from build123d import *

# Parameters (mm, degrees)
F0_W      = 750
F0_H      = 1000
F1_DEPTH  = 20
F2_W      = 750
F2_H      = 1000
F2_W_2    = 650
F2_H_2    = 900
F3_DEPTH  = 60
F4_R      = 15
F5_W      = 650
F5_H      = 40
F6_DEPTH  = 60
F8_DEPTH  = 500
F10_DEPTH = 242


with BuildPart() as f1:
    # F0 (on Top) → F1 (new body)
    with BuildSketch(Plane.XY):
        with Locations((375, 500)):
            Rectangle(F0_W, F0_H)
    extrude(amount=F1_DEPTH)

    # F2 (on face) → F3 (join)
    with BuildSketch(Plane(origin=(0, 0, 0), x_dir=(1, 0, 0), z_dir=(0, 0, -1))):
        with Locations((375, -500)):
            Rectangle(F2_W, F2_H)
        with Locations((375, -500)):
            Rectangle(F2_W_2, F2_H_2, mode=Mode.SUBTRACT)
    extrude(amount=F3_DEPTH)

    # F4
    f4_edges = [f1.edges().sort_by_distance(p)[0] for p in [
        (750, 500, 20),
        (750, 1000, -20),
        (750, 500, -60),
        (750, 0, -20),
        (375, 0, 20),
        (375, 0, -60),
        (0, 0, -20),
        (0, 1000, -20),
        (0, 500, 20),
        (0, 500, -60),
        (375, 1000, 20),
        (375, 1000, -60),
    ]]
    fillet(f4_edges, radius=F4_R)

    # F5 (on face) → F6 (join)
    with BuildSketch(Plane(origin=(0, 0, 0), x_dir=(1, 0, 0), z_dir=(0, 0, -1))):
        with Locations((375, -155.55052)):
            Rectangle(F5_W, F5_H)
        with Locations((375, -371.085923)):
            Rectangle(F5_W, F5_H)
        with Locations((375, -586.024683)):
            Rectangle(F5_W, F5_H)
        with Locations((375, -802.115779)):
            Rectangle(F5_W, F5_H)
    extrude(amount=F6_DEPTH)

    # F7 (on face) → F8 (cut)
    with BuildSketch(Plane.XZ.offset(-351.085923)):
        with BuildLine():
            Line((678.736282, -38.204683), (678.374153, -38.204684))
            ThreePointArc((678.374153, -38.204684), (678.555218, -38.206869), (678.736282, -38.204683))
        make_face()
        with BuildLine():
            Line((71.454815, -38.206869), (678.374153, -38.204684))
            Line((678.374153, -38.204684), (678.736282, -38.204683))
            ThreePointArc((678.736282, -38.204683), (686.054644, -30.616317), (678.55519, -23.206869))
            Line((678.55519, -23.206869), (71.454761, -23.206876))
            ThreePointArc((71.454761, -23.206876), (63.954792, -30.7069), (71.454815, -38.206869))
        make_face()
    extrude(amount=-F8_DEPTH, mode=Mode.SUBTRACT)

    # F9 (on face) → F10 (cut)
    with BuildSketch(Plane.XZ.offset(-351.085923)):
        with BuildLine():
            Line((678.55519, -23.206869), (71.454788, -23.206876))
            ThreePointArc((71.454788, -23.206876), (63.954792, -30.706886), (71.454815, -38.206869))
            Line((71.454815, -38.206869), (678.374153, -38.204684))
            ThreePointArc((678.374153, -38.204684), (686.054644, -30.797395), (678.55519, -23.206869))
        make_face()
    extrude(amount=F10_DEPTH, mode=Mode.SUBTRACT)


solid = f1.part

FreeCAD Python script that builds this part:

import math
import FreeCAD as App
import Part
import Sketcher

V = App.Vector
Q = App.Units.Quantity


def edges_at(feature, points):
    """Names of the edges that pass closest to the given points."""
    edges = feature.Shape.Edges
    near = lambda p: min(range(len(edges)), key=lambda i: edges[i].distToShape(Part.Vertex(*p))[0])
    return sorted({f"Edge{near(p) + 1}" for p in points})


def add_polygon(sketch, points):
    """Adds a closed chain of lines whose ends are joined by coincident constraints."""
    first, n = sketch.GeometryCount, len(points)
    for a, b in zip(points, points[1:] + points[:1]):
        sketch.addGeometry(Part.LineSegment(App.Vector(*a, 0), App.Vector(*b, 0)), False)
    for i in range(n):
        sketch.addConstraint(Sketcher.Constraint("Coincident", first + i, 2, first + (i + 1) % n, 1))

doc = App.newDocument("Part")
body = doc.addObject("PartDesign::Body", "Body")

sketch1 = doc.addObject("Sketcher::SketchObject", "Sketch")
body.addObject(sketch1)
sketch1.AttachmentSupport = (doc.XY_Plane, [""])
sketch1.MapMode = "FlatFace"
add_polygon(sketch1, [(0, 1000), (0, 0), (750, 0), (750, 1000)])
sketch1.addConstraint([
    Sketcher.Constraint("Vertical", 0),
    Sketcher.Constraint("Horizontal", 1),
    Sketcher.Constraint("Vertical", 2),
    Sketcher.Constraint("Horizontal", 3),
    Sketcher.Constraint("Coincident", 0, 2, -1, 1),
    Sketcher.Constraint("DistanceX", 1, 1, 1, 2, Q("750 mm")),
    Sketcher.Constraint("DistanceY", 0, 2, 0, 1, Q("1000 mm")),
])
pad1 = doc.addObject("PartDesign::Pad", "Pad")
body.addObject(pad1)
pad1.Profile = sketch1
pad1.Length = 20

sketch2 = doc.addObject("Sketcher::SketchObject", "Sketch001")
body.addObject(sketch2)
sketch2.AttachmentSupport = (doc.XY_Plane, [""])
sketch2.MapMode = "FlatFace"
add_polygon(sketch2, [(0, 0), (0, 1000), (750, 1000), (750, 0)])
add_polygon(sketch2, [(700, 950), (50, 950), (50, 50), (700, 50)])
sketch2.addConstraint([
    Sketcher.Constraint("Vertical", 0),
    Sketcher.Constraint("Horizontal", 1),
    Sketcher.Constraint("Vertical", 2),
    Sketcher.Constraint("Horizontal", 3),
    Sketcher.Constraint("Horizontal", 4),
    Sketcher.Constraint("Vertical", 5),
    Sketcher.Constraint("Horizontal", 6),
    Sketcher.Constraint("Vertical", 7),
    Sketcher.Constraint("Coincident", 3, 2, -1, 1),
    Sketcher.Constraint("DistanceX", 1, 1, 1, 2, Q("750 mm")),
    Sketcher.Constraint("DistanceX", 4, 2, 4, 1, Q("650 mm")),
    Sketcher.Constraint("DistanceY", 0, 1, 0, 2, Q("1000 mm")),
    Sketcher.Constraint("DistanceY", 5, 2, 5, 1, Q("900 mm")),
    Sketcher.Constraint("DistanceX", -1, 1, 4, 2, Q("50 mm")),
    Sketcher.Constraint("DistanceY", -1, 1, 4, 2, Q("950 mm")),
])
pad2 = doc.addObject("PartDesign::Pad", "Pad001")
body.addObject(pad2)
pad2.Profile = sketch2
pad2.Length = 60
pad2.Reversed = True
doc.recompute()

fillet = doc.addObject("PartDesign::Fillet", "Fillet")
body.addObject(fillet)
fillet.Base = (pad2, edges_at(pad2, [
    (750, 500, 20),
    (750, 1000, -20),
    (750, 500, -60),
    (750, 0, -20),
    (375, 0, 20),
    (375, 0, -60),
    (0, 0, -20),
    (0, 1000, -20),
    (0, 500, 20),
    (0, 500, -60),
    (375, 1000, 20),
    (375, 1000, -60),
]))
fillet.Radius = 15

sketch3 = doc.addObject("Sketcher::SketchObject", "Sketch002")
body.addObject(sketch3)
sketch3.AttachmentSupport = (doc.XY_Plane, [""])
sketch3.MapMode = "FlatFace"
add_polygon(sketch3, [(50, 136), (50, 176), (700, 176), (700, 136)])
add_polygon(sketch3, [(50, 351), (50, 391), (700, 391), (700, 351)])
add_polygon(sketch3, [(50, 566), (50, 606), (700, 606), (700, 566)])
add_polygon(sketch3, [(50, 782), (50, 822), (700, 822), (700, 782)])
sketch3.addConstraint([
    Sketcher.Constraint("Vertical", 0),
    Sketcher.Constraint("Horizontal", 1),
    Sketcher.Constraint("Vertical", 2),
    Sketcher.Constraint("Horizontal", 3),
    Sketcher.Constraint("Vertical", 4),
    Sketcher.Constraint("Horizontal", 5),
    Sketcher.Constraint("Vertical", 6),
    Sketcher.Constraint("Horizontal", 7),
    Sketcher.Constraint("Vertical", 8),
    Sketcher.Constraint("Horizontal", 9),
    Sketcher.Constraint("Vertical", 10),
    Sketcher.Constraint("Horizontal", 11),
    Sketcher.Constraint("Vertical", 12),
    Sketcher.Constraint("Horizontal", 13),
    Sketcher.Constraint("Vertical", 14),
    Sketcher.Constraint("Horizontal", 15),
    Sketcher.Constraint("Vertical", 3, 2, 4, 2),
    Sketcher.Constraint("Vertical", 2, 2, 5, 2),
    Sketcher.Constraint("Vertical", 7, 2, 8, 2),
    Sketcher.Constraint("Vertical", 6, 2, 9, 2),
    Sketcher.Constraint("Vertical", 11, 2, 12, 2),
    Sketcher.Constraint("Vertical", 10, 2, 13, 2),
    Sketcher.Constraint("Equal", 2, 4),
    Sketcher.Constraint("Equal", 6, 8),
    Sketcher.Constraint("Equal", 10, 12),
    Sketcher.Constraint("DistanceX", 1, 1, 1, 2, Q("650 mm")),
    Sketcher.Constraint("DistanceY", 0, 1, 0, 2, Q("40 mm")),
    Sketcher.Constraint("DistanceX", -1, 1, 0, 2, Q("50 mm")),
    Sketcher.Constraint("DistanceY", -1, 1, 0, 2, Q("175.55052 mm")),
    Sketcher.Constraint("DistanceY", -1, 1, 12, 2, Q("822.115779 mm")),
    Sketcher.Constraint("DistanceY", 4, 2, 8, 2, Q("214.93876 mm")),
    Sketcher.Constraint("DistanceY", -1, 1, 4, 2, Q("391.085923 mm")),
])
pad3 = doc.addObject("PartDesign::Pad", "Pad002")
body.addObject(pad3)
pad3.Profile = sketch3
pad3.Length = 60
pad3.Reversed = True

sketch4 = doc.addObject("Sketcher::SketchObject", "Sketch003")
body.addObject(sketch4)
sketch4.AttachmentSupport = (doc.XZ_Plane, [""])
sketch4.MapMode = "FlatFace"
sketch4.AttachmentOffset = App.Placement(V(0, 0, -351.085923), App.Rotation())
sketch4.addGeometry([
    Part.ArcOfCircle(Part.Circle(V(678.555197, -30.705352, 0), V(0, 0, 1), 7.501517), math.radians(-91.382927), math.radians(-88.616756)),
    Part.ArcOfCircle(Part.Circle(V(678.55519, -30.706869, 0), V(0, 0, 1), 7.5), math.radians(-88.616427), math.radians(90.000003)),
    Part.LineSegment(V(678.55519, -23.206869, 0), V(71.454761, -23.206876, 0)),
    Part.ArcOfCircle(Part.Circle(V(71.454789, -30.706872, 0), V(0, 0, 1), 7.499996), math.radians(90.00021), math.radians(270.000202)),
    Part.LineSegment(V(71.454815, -38.206869, 0), V(678.374153, -38.204684, 0)),
], False)
sketch4.addConstraint([
    Sketcher.Constraint("Coincident", 0, 2, 1, 1),
    Sketcher.Constraint("Coincident", 1, 2, 2, 1),
    Sketcher.Constraint("Coincident", 2, 2, 3, 1),
    Sketcher.Constraint("Coincident", 3, 2, 4, 1),
    Sketcher.Constraint("Coincident", 4, 2, 0, 1),
    Sketcher.Constraint("Radius", 1, Q("7.5 mm")),
    Sketcher.Constraint("DistanceY", 3, 2, 1, 3, Q("7.5 mm")),
    Sketcher.Constraint("Radius", 0, Q("7.501517 mm")),
    Sketcher.Constraint("Radius", 3, Q("7.499996 mm")),
    Sketcher.Constraint("DistanceX", 3, 3, 1, 3, Q("607.100402 mm")),
    Sketcher.Constraint("DistanceX", 3, 3, 1, 2, Q("607.100402 mm")),
    Sketcher.Constraint("Distance", 2, Q("607.100429 mm")),
    Sketcher.Constraint("Distance", 4, Q("606.919338 mm")),
    Sketcher.Constraint("DistanceX", -1, 1, 1, 3, Q("678.55519 mm")),
    Sketcher.Constraint("DistanceY", 1, 3, -1, 1, Q("30.706869 mm")),
    Sketcher.Constraint("DistanceX", -1, 1, 0, 2, Q("678.736282 mm")),
    Sketcher.Constraint("DistanceX", 3, 3, 0, 3, Q("607.100408 mm")),
    Sketcher.Constraint("DistanceX", 3, 2, 0, 3, Q("607.100382 mm")),
])
pocket1 = doc.addObject("PartDesign::Pocket", "Pocket")
body.addObject(pocket1)
pocket1.Profile = sketch4
pocket1.Length = 500

sketch5 = doc.addObject("Sketcher::SketchObject", "Sketch004")
body.addObject(sketch5)
sketch5.AttachmentSupport = (doc.XZ_Plane, [""])
sketch5.MapMode = "FlatFace"
sketch5.AttachmentOffset = App.Placement(V(0, 0, -351.085923), App.Rotation())
sketch5.addGeometry([
    Part.LineSegment(V(679, -23, 0), V(71, -23, 0)),
    Part.ArcOfCircle(Part.Circle(V(71, -31, 0), V(0, 0, 1), 7), math.radians(90), math.radians(270)),
    Part.LineSegment(V(71, -38, 0), V(678, -38, 0)),
    Part.ArcOfCircle(Part.Circle(V(679, -31, 0), V(0, 0, 1), 8), math.radians(-91), math.radians(90)),
], False)
sketch5.addConstraint([
    Sketcher.Constraint("Tangent", 0, 2, 1, 1),
    Sketcher.Constraint("Tangent", 1, 2, 2, 1),
    Sketcher.Constraint("Coincident", 2, 2, 3, 1),
    Sketcher.Constraint("Tangent", 3, 2, 0, 1),
    Sketcher.Constraint("Vertical", 1, 3, 0, 2),
    Sketcher.Constraint("Radius", 3, Q("7.5 mm")),
    Sketcher.Constraint("DistanceY", 1, 2, 3, 2, Q("15 mm")),
    Sketcher.Constraint("Distance", 0, Q("607.100402 mm")),
    Sketcher.Constraint("Distance", 2, Q("606.919338 mm")),
    Sketcher.Constraint("DistanceX", -1, 1, 1, 3, Q("71.454789 mm")),
    Sketcher.Constraint("DistanceY", 3, 3, -1, 1, Q("30.706869 mm")),
])
pocket2 = doc.addObject("PartDesign::Pocket", "Pocket001")
body.addObject(pocket2)
pocket2.Profile = sketch5
pocket2.Length = 242
pocket2.Reversed = True

doc.recompute()
